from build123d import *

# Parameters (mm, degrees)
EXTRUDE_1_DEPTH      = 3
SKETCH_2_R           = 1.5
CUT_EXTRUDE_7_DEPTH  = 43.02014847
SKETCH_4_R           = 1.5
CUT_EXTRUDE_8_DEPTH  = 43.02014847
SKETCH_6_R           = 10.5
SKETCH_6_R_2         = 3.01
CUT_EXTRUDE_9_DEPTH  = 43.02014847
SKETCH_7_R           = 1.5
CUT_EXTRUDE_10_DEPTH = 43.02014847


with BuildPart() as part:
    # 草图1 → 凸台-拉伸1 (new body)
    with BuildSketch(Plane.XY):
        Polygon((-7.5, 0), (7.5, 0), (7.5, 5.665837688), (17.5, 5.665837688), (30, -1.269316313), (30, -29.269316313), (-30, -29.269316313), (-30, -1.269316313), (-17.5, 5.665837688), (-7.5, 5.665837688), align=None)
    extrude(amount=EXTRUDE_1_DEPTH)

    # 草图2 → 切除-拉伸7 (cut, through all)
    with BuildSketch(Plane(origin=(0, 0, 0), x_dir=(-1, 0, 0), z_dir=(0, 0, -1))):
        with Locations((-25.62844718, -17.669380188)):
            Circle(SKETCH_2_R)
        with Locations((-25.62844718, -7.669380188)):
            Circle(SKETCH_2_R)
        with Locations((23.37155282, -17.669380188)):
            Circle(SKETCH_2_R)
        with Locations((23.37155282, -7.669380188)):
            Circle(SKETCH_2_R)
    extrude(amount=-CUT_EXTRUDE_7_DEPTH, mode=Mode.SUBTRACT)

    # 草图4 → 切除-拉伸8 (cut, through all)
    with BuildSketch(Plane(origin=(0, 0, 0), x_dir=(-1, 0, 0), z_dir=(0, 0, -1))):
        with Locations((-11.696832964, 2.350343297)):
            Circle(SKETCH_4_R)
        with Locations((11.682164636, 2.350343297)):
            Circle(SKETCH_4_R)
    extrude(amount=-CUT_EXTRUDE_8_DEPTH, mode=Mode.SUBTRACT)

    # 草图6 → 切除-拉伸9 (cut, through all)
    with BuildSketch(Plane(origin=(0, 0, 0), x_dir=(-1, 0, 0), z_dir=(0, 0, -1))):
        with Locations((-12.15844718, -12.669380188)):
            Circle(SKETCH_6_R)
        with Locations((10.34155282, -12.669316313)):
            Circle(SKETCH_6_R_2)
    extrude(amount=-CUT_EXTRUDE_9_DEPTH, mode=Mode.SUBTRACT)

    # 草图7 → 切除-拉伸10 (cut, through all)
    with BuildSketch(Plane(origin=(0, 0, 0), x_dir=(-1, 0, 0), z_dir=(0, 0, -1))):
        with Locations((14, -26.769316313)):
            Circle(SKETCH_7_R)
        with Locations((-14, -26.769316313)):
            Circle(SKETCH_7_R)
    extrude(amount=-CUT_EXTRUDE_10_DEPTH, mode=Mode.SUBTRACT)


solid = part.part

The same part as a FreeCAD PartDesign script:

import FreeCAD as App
import Part
import Sketcher
Q = App.Units.Quantity


def add_polygon(sketch, points):
    """Adds a closed chain of lines whose ends are joined by coincident constraints."""
    first, n = sketch.GeometryCount, len(points)
    for a, b in zip(points, points[1:] + points[:1]):
        sketch.addGeometry(Part.LineSegment(App.Vector(*a, 0), App.Vector(*b, 0)), False)
    for i in range(n):
        sketch.addConstraint(Sketcher.Constraint("Coincident", first + i, 2, first + (i + 1) % n, 1))

doc = App.newDocument("Part")
body = doc.addObject("PartDesign::Body", "Body")

# Sketch on XY plane
sketch1 = body.newObject("Sketcher::SketchObject", "Sketch")
sketch1.AttachmentSupport = (doc.getObject("XY_Plane"), [""])
sketch1.MapMode = "FlatFace"
add_polygon(sketch1, [(7.5, 0), (-7.5, 0), (-7.5, 5.665838), (-17.5, 5.665838), (-30, -1.269316), (-30, -29.269316), (30, -29.269316), (30, -1.269316), (17.5, 5.665838), (7.5, 5.665838)])  # lines 0-9
sketch1.addConstraint([
    Sketcher.Constraint("Horizontal", 0),
    Sketcher.Constraint("Vertical", 1),
    Sketcher.Constraint("Horizontal", 2),
    Sketcher.Constraint("Vertical", 4),
    Sketcher.Constraint("Horizontal", 5),
    Sketcher.Constraint("Vertical", 6),
    Sketcher.Constraint("Horizontal", 8),
    Sketcher.Constraint("Vertical", 9),
    Sketcher.Constraint("Symmetric", 0, 2, 9, 2, -1, 1),
    Sketcher.Constraint("Symmetric", 3, 2, 6, 2, -2),
    Sketcher.Constraint("Symmetric", 2, 2, 7, 2, -2),
    Sketcher.Constraint("DistanceX", 0, 2, 0, 1, Q("15 mm")),
    Sketcher.Constraint("DistanceX", 2, 2, 2, 1, Q("10 mm")),
    Sketcher.Constraint("DistanceX", 5, 1, 5, 2, Q("60 mm")),
    Sketcher.Constraint("DistanceY", 4, 2, 4, 1, Q("28 mm")),
    Sketcher.Constraint("DistanceY", 1, 1, 1, 2, Q("5.665838 mm")),
    Sketcher.Constraint("Distance", 3, Q("14.294977 mm")),
])
pad1 = body.newObject("PartDesign::Pad", "Pad")
pad1.Profile = sketch1
pad1.Length = 3

# Sketch on XY plane
sketch2 = body.newObject("Sketcher::SketchObject", "Sketch001")
sketch2.AttachmentSupport = (doc.getObject("XY_Plane"), [""])
sketch2.MapMode = "FlatFace"
sketch2.addGeometry([
    Part.Circle(App.Vector(25.628447, -17.66938, 0), App.Vector(0, 0, 1), 1.5),
    Part.Circle(App.Vector(25.628447, -7.66938, 0), App.Vector(0, 0, 1), 1.5),
    Part.Circle(App.Vector(-23.371553, -17.66938, 0), App.Vector(0, 0, 1), 1.5),
    Part.Circle(App.Vector(-23.371553, -7.66938, 0), App.Vector(0, 0, 1), 1.5),
], False)
sketch2.addConstraint([
    Sketcher.Constraint("Equal", 0, 1),
    Sketcher.Constraint("Equal", 1, 2),
    Sketcher.Constraint("Equal", 2, 3),
    Sketcher.Constraint("Horizontal", 0, 3, 2, 3),
    Sketcher.Constraint("Horizontal", 1, 3, 3, 3),
    Sketcher.Constraint("Vertical", 0, 3, 1, 3),
    Sketcher.Constraint("Vertical", 2, 3, 3, 3),
    Sketcher.Constraint("Diameter", 0, Q("3 mm")),
    Sketcher.Constraint("DistanceY", 0, 3, 1, 3, Q("10 mm")),
    Sketcher.Constraint("DistanceX", 2, 3, 0, 3, Q("49 mm")),
    Sketcher.Constraint("DistanceY", 0, 3, -1, 1, Q("17.66938 mm")),
    Sketcher.Constraint("DistanceX", -1, 1, 0, 3, Q("25.628447 mm")),
])
pocket1 = body.newObject("PartDesign::Pocket", "Pocket")
pocket1.Profile = sketch2
pocket1.Type = "ThroughAll"
pocket1.Reversed = True

# Sketch on XY plane
sketch3 = body.newObject("Sketcher::SketchObject", "Sketch002")
sketch3.AttachmentSupport = (doc.getObject("XY_Plane"), [""])
sketch3.MapMode = "FlatFace"
sketch3.addGeometry([
    Part.Circle(App.Vector(11.696833, 2.350343, 0), App.Vector(0, 0, 1), 1.5),
    Part.Circle(App.Vector(-11.682165, 2.350343, 0), App.Vector(0, 0, 1), 1.5),
], False)
sketch3.addConstraint([
    Sketcher.Constraint("Equal", 0, 1),
    Sketcher.Constraint("Horizontal", 0, 3, 1, 3),
    Sketcher.Constraint("Diameter", 0, Q("3 mm")),
    Sketcher.Constraint("DistanceX", -1, 1, 0, 3, Q("11.696833 mm")),
    Sketcher.Constraint("DistanceY", -1, 1, 0, 3, Q("2.350343 mm")),
    Sketcher.Constraint("DistanceX", 1, 3, -1, 1, Q("11.682165 mm")),
])
pocket2 = body.newObject("PartDesign::Pocket", "Pocket001")
pocket2.Profile = sketch3
pocket2.Type = "ThroughAll"
pocket2.Reversed = True

# Sketch on XY plane
sketch4 = body.newObject("Sketcher::SketchObject", "Sketch003")
sketch4.AttachmentSupport = (doc.getObject("XY_Plane"), [""])
sketch4.MapMode = "FlatFace"
sketch4.addGeometry([
    Part.Circle(App.Vector(12.158447, -12.66938, 0), App.Vector(0, 0, 1), 10.5),
    Part.Circle(App.Vector(-10.341553, -12.669316, 0), App.Vector(0, 0, 1), 3.01),
], False)
sketch4.addConstraint([
    Sketcher.Constraint("Diameter", 0, Q("21 mm")),
    Sketcher.Constraint("Diameter", 1, Q("6.02 mm")),
    Sketcher.Constraint("DistanceX", 1, 3, 0, 3, Q("22.5 mm")),
    Sketcher.Constraint("DistanceY", 0, 3, -1, 1, Q("12.66938 mm")),
    Sketcher.Constraint("DistanceX", -1, 1, 0, 3, Q("12.158447 mm")),
    Sketcher.Constraint("DistanceY", 1, 3, -1, 1, Q("12.669316 mm")),
])
pocket3 = body.newObject("PartDesign::Pocket", "Pocket002")
pocket3.Profile = sketch4
pocket3.Type = "ThroughAll"
pocket3.Reversed = True

# Sketch on XY plane
sketch5 = body.newObject("Sketcher::SketchObject", "Sketch004")
sketch5.AttachmentSupport = (doc.getObject("XY_Plane"), [""])
sketch5.MapMode = "FlatFace"
sketch5.addGeometry([
    Part.Circle(App.Vector(-14, -26.769316, 0), App.Vector(0, 0, 1), 1.5),
    Part.Circle(App.Vector(14, -26.769316, 0), App.Vector(0, 0, 1), 1.5),
], False)
sketch5.addConstraint([
    Sketcher.Constraint("Equal", 0, 1),
    Sketcher.Constraint("Symmetric", 0, 3, 1, 3, -2),
    Sketcher.Constraint("Diameter", 0, Q("3 mm")),
    Sketcher.Constraint("DistanceX", 0, 3, -1, 1, Q("14 mm")),
    Sketcher.Constraint("DistanceY", 0, 3, -1, 1, Q("26.769316 mm")),
])
pocket4 = body.newObject("PartDesign::Pocket", "Pocket003")
pocket4.Profile = sketch5
pocket4.Type = "ThroughAll"
pocket4.Reversed = True

doc.recompute()
